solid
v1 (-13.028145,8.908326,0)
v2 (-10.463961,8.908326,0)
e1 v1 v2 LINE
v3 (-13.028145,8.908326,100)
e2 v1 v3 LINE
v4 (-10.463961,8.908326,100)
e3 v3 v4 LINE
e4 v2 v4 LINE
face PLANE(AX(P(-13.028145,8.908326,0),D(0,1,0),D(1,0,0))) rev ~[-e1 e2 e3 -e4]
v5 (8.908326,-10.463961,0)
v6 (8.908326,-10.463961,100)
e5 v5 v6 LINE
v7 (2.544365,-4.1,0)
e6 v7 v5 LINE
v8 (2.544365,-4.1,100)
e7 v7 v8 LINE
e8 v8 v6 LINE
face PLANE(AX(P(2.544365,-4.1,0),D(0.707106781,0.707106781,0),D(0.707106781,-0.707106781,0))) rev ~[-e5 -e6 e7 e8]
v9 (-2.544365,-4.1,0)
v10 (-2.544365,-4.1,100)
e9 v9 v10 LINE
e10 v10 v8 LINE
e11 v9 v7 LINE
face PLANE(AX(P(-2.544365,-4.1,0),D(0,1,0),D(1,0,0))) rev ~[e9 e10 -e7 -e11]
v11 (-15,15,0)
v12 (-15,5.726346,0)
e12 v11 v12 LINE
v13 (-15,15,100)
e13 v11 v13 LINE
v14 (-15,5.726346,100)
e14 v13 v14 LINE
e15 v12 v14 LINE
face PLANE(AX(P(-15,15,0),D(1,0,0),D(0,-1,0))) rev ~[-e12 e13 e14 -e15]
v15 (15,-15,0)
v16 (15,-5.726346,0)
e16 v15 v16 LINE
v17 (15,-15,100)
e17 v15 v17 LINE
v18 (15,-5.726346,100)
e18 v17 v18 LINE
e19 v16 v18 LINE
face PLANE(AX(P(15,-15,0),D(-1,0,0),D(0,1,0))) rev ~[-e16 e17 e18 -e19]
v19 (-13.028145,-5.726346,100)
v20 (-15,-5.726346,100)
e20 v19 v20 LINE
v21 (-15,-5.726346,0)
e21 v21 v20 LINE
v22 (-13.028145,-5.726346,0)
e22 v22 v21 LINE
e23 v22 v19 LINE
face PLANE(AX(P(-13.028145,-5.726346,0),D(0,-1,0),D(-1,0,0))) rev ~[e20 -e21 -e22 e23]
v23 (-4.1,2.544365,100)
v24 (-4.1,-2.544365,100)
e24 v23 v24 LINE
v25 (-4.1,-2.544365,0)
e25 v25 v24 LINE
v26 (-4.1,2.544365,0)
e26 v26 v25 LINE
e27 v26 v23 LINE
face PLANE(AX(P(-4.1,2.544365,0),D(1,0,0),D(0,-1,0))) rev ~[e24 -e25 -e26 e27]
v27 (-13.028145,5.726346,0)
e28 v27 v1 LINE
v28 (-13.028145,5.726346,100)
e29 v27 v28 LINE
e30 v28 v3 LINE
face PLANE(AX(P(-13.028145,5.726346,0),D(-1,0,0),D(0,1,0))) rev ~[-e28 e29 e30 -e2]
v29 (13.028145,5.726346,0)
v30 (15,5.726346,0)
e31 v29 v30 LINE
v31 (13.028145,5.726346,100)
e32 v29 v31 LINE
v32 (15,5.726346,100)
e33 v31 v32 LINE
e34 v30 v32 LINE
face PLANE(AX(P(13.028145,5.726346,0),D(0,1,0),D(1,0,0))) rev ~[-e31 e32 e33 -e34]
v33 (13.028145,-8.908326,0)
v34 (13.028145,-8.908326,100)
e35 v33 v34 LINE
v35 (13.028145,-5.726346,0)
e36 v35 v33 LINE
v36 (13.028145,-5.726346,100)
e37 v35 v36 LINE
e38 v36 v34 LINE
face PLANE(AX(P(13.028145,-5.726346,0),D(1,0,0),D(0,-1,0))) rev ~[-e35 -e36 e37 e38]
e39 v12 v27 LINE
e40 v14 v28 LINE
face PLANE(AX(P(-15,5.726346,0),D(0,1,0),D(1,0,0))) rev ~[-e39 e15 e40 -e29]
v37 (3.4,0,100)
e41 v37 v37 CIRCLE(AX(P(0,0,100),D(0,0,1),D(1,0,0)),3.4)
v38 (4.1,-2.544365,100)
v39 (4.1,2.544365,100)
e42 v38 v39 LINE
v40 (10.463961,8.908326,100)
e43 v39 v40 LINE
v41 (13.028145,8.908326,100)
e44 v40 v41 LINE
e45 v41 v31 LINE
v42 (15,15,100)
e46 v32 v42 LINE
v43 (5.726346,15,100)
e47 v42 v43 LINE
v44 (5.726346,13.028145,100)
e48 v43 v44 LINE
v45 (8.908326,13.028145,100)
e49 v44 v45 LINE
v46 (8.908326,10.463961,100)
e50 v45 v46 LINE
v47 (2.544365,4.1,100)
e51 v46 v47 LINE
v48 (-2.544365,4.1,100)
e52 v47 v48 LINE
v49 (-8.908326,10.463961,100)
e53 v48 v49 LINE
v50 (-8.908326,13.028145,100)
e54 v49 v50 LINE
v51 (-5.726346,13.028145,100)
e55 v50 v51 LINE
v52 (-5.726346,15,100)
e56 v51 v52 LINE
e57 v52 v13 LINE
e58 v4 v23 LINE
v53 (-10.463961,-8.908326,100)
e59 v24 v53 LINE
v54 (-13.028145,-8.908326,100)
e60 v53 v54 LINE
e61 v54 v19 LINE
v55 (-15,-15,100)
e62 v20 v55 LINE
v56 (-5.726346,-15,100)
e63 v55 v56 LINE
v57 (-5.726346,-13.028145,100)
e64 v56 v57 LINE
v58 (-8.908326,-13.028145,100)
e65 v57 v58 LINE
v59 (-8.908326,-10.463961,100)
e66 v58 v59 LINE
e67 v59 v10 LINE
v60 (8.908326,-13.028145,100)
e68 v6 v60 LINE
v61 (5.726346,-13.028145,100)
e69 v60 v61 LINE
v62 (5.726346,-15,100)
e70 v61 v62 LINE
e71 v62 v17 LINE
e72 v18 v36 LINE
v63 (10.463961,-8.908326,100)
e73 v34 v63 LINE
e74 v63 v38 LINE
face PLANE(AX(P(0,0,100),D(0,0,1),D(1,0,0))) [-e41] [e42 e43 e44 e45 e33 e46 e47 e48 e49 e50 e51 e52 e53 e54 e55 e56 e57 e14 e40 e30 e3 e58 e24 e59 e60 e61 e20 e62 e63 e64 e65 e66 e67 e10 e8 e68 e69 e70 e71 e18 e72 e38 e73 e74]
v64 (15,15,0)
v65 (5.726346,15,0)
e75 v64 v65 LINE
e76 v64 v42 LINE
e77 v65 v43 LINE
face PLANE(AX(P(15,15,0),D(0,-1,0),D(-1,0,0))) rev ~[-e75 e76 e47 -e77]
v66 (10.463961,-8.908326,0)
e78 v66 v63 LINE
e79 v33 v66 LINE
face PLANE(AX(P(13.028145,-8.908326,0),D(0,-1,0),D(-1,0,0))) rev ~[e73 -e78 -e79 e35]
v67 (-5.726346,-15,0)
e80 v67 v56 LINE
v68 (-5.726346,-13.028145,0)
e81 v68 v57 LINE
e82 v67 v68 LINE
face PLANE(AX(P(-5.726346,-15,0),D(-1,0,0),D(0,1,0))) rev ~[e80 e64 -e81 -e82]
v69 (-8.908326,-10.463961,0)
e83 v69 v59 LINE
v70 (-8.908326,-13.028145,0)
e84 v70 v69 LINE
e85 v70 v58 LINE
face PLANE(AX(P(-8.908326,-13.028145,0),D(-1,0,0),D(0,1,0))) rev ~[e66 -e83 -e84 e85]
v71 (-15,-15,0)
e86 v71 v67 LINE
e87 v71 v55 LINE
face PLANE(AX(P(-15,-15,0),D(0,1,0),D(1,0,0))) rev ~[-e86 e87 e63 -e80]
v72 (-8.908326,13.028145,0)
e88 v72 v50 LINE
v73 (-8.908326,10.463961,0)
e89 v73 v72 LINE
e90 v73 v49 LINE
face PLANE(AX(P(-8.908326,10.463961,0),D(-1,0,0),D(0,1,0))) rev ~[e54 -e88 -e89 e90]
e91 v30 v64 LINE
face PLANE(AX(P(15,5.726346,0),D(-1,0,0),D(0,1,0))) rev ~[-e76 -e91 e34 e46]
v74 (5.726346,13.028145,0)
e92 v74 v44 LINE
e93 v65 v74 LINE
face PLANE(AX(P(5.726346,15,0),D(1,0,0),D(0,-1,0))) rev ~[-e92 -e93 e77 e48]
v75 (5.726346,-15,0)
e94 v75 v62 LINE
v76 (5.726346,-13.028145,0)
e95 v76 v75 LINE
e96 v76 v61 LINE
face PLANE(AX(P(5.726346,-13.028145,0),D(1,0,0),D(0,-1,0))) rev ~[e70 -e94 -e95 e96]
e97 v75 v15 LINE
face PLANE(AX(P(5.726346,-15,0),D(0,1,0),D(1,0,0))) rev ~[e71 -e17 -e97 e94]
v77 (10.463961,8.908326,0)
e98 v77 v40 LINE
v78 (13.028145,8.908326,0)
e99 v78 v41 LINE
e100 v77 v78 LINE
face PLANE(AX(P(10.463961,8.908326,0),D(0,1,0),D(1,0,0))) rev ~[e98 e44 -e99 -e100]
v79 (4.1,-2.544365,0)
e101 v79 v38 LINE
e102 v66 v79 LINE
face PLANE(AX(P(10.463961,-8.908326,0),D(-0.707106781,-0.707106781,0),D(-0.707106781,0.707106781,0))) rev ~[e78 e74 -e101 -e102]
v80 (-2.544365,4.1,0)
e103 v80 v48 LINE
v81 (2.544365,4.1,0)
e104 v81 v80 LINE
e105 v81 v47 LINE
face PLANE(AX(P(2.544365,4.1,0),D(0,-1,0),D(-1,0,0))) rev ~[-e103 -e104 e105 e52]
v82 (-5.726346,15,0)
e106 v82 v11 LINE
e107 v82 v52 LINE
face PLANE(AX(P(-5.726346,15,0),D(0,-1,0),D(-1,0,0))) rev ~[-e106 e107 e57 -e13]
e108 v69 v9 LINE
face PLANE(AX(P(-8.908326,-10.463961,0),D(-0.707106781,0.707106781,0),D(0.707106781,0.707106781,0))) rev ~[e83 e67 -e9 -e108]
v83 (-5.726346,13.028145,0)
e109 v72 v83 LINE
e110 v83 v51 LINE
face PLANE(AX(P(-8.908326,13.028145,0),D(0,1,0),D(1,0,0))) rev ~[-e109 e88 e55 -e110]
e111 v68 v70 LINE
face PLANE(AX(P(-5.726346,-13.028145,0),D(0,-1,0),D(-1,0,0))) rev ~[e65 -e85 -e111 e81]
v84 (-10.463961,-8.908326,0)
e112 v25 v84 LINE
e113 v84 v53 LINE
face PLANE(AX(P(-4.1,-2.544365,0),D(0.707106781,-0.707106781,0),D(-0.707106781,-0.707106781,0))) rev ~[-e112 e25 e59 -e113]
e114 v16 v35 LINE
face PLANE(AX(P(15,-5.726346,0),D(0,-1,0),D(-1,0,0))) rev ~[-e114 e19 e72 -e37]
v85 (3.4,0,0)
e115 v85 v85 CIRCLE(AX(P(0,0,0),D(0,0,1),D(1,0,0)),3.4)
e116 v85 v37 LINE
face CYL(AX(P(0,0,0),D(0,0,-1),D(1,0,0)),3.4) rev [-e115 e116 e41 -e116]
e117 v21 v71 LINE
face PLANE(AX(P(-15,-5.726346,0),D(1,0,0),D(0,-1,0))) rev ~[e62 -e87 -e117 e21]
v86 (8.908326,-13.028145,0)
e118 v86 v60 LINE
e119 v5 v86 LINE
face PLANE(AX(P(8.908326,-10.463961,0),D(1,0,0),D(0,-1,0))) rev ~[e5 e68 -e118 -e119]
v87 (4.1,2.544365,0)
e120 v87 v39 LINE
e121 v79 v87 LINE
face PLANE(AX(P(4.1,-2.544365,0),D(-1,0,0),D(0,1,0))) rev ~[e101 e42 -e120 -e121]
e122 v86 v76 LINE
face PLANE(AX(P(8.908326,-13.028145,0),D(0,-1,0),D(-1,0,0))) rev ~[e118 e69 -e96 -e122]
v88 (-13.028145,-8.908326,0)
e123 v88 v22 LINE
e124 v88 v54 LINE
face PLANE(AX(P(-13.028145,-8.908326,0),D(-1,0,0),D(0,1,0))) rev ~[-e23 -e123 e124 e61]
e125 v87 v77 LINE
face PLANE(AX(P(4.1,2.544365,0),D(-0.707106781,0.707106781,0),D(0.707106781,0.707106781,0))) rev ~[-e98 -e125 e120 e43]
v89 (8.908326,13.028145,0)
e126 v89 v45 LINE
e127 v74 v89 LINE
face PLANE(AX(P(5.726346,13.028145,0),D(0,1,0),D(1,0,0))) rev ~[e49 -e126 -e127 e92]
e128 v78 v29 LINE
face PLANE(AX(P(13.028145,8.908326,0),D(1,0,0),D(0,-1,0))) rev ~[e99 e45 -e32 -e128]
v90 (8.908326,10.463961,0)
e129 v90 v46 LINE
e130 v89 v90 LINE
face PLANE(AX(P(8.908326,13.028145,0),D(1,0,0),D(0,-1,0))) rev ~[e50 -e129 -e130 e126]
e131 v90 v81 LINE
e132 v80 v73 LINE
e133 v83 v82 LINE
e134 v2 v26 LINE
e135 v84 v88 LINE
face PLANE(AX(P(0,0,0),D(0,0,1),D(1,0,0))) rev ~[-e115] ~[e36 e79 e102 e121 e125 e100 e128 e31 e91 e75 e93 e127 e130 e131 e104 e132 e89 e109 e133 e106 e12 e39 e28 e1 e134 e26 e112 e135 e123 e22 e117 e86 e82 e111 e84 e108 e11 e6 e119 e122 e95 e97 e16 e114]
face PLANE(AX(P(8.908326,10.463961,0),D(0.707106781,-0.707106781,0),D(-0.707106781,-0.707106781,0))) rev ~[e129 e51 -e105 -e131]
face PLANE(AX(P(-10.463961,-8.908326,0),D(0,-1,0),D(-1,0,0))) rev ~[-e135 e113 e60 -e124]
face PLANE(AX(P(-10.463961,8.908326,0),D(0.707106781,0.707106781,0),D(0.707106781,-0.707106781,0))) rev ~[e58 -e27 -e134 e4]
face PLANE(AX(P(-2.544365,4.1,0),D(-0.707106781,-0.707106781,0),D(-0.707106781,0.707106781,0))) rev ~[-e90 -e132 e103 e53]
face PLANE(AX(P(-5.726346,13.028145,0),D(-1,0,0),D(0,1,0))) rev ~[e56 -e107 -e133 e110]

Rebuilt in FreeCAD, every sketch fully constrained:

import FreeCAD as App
import Part
import Sketcher
Q = App.Units.Quantity


def add_polygon(sketch, points):
    """Adds a closed chain of lines whose ends are joined by coincident constraints."""
    first, n = sketch.GeometryCount, len(points)
    for a, b in zip(points, points[1:] + points[:1]):
        sketch.addGeometry(Part.LineSegment(App.Vector(*a, 0), App.Vector(*b, 0)), False)
    for i in range(n):
        sketch.addConstraint(Sketcher.Constraint("Coincident", first + i, 2, first + (i + 1) % n, 1))

doc = App.newDocument("Part")
body = doc.addObject("PartDesign::Body", "Body")

# Sketch on XY plane
sketch1 = body.newObject("Sketcher::SketchObject", "Sketch")
sketch1.AttachmentSupport = (doc.getObject("XY_Plane"), [""])
sketch1.MapMode = "FlatFace"
add_polygon(sketch1, [(-4.1, 2.5), (-4.1, -2.5), (-10.5, -8.9), (-13, -8.9), (-13, -5.7), (-15, -5.7), (-15, -15), (-5.7, -15), (-5.7, -13), (-8.9, -13), (-8.9, -10.5), (-2.5, -4.1), (2.5, -4.1), (8.9, -10.5), (8.9, -13), (5.7, -13), (5.7, -15), (15, -15), (15, -5.7), (13, -5.7), (13, -8.9), (10.5, -8.9), (4.1, -2.5), (4.1, 2.5), (10.5, 8.9), (13, 8.9), (13, 5.7), (15, 5.7), (15, 15), (5.7, 15), (5.7, 13), (8.9, 13), (8.9, 10.5), (2.5, 4.1), (-2.5, 4.1), (-8.9, 10.5), (-8.9, 13), (-5.7, 13), (-5.7, 15), (-15, 15), (-15, 5.7), (-13, 5.7), (-13, 8.9), (-10.5, 8.9)])  # lines 0-43
sketch1.addGeometry(Part.Circle(App.Vector(0, 0, 0), App.Vector(0, 0, 1), 3.4), False)  # 44
sketch1.addConstraint([
    Sketcher.Constraint("Vertical", 0),
    Sketcher.Constraint("Horizontal", 2),
    Sketcher.Constraint("Vertical", 3),
    Sketcher.Constraint("Horizontal", 4),
    Sketcher.Constraint("Vertical", 5),
    Sketcher.Constraint("Horizontal", 6),
    Sketcher.Constraint("Vertical", 7),
    Sketcher.Constraint("Horizontal", 8),
    Sketcher.Constraint("Vertical", 9),
    Sketcher.Constraint("Horizontal", 11),
    Sketcher.Constraint("Vertical", 13),
    Sketcher.Constraint("Horizontal", 14),
    Sketcher.Constraint("Vertical", 15),
    Sketcher.Constraint("Horizontal", 16),
    Sketcher.Constraint("Vertical", 17),
    Sketcher.Constraint("Horizontal", 18),
    Sketcher.Constraint("Vertical", 19),
    Sketcher.Constraint("Horizontal", 20),
    Sketcher.Constraint("Vertical", 22),
    Sketcher.Constraint("Horizontal", 24),
    Sketcher.Constraint("Vertical", 25),
    Sketcher.Constraint("Horizontal", 26),
    Sketcher.Constraint("Vertical", 27),
    Sketcher.Constraint("Horizontal", 28),
    Sketcher.Constraint("Vertical", 29),
    Sketcher.Constraint("Horizontal", 30),
    Sketcher.Constraint("Vertical", 31),
    Sketcher.Constraint("Horizontal", 33),
    Sketcher.Constraint("Vertical", 35),
    Sketcher.Constraint("Horizontal", 36),
    Sketcher.Constraint("Vertical", 37),
    Sketcher.Constraint("Horizontal", 38),
    Sketcher.Constraint("Vertical", 39),
    Sketcher.Constraint("Horizontal", 40),
    Sketcher.Constraint("Vertical", 41),
    Sketcher.Constraint("Horizontal", 42),
    Sketcher.Constraint("Coincident", 44, 3, -1, 1),
    Sketcher.Constraint("Symmetric", 0, 2, 22, 2, -1, 1),
    Sketcher.Constraint("Symmetric", 1, 2, 23, 2, -1, 1),
    Sketcher.Constraint("Symmetric", 3, 2, 25, 2, -1, 1),
    Sketcher.Constraint("Symmetric", 5, 2, 27, 2, -1, 1),
    Sketcher.Constraint("Symmetric", 7, 2, 29, 2, -1, 1),
    Sketcher.Constraint("Symmetric", 9, 2, 31, 2, -1, 1),
    Sketcher.Constraint("Symmetric", 10, 2, 32, 2, -1, 1),
    Sketcher.Constraint("Symmetric", 12, 2, 34, 2, -1, 1),
    Sketcher.Constraint("Symmetric", 14, 2, 36, 2, -1, 1),
    Sketcher.Constraint("Symmetric", 16, 2, 38, 2, -1, 1),
    Sketcher.Constraint("Symmetric", 18, 2, 40, 2, -1, 1),
    Sketcher.Constraint("Symmetric", 20, 2, 42, 2, -1, 1),
    Sketcher.Constraint("Symmetric", 9, 2, 12, 2, -2),
    Sketcher.Constraint("Symmetric", 7, 2, 14, 2, -2),
    Sketcher.Constraint("Symmetric", 5, 2, 16, 2, -2),
    Sketcher.Constraint("Symmetric", 3, 2, 18, 2, -2),
    Sketcher.Constraint("Symmetric", 1, 2, 20, 2, -2),
    Sketcher.Constraint("Parallel", 1, 10),
    Sketcher.Constraint("Perpendicular", 10, 12),
    Sketcher.Constraint("Parallel", 12, 21),
    Sketcher.Constraint("Perpendicular", 32, 34),
    Sketcher.Constraint("Parallel", 34, 43),
    Sketcher.Constraint("Horizontal", 0, 2, 21, 2),
    Sketcher.Constraint("Equal", 33, 0),
    Sketcher.Constraint("Equal", 36, 3),
    Sketcher.Constraint("Equal", 38, 5),
    Sketcher.Constraint("Equal", 40, 7),
    Sketcher.Constraint("Equal", 42, 9),
    Sketcher.Constraint("Equal", 1, 10),
    Sketcher.Constraint("Diameter", 44, Q("6.8 mm")),
    Sketcher.Constraint("Distance", 1, Q("9 mm")),
    Sketcher.Constraint("DistanceX", 4, 2, -1, 1, Q("15 mm")),
    Sketcher.Constraint("DistanceX", 0, 2, -1, 1, Q("4.1 mm")),
    Sketcher.Constraint("DistanceX", 8, 2, 8, 1, Q("3.181981 mm")),
    Sketcher.Constraint("DistanceX", 11, 1, 11, 2, Q("5.08873 mm")),
    Sketcher.Constraint("DistanceX", 2, 2, 6, 2, Q("7.301799 mm")),
])
pad1 = body.newObject("PartDesign::Pad", "Pad")
pad1.Profile = sketch1
pad1.Length = 100

doc.recompute()
